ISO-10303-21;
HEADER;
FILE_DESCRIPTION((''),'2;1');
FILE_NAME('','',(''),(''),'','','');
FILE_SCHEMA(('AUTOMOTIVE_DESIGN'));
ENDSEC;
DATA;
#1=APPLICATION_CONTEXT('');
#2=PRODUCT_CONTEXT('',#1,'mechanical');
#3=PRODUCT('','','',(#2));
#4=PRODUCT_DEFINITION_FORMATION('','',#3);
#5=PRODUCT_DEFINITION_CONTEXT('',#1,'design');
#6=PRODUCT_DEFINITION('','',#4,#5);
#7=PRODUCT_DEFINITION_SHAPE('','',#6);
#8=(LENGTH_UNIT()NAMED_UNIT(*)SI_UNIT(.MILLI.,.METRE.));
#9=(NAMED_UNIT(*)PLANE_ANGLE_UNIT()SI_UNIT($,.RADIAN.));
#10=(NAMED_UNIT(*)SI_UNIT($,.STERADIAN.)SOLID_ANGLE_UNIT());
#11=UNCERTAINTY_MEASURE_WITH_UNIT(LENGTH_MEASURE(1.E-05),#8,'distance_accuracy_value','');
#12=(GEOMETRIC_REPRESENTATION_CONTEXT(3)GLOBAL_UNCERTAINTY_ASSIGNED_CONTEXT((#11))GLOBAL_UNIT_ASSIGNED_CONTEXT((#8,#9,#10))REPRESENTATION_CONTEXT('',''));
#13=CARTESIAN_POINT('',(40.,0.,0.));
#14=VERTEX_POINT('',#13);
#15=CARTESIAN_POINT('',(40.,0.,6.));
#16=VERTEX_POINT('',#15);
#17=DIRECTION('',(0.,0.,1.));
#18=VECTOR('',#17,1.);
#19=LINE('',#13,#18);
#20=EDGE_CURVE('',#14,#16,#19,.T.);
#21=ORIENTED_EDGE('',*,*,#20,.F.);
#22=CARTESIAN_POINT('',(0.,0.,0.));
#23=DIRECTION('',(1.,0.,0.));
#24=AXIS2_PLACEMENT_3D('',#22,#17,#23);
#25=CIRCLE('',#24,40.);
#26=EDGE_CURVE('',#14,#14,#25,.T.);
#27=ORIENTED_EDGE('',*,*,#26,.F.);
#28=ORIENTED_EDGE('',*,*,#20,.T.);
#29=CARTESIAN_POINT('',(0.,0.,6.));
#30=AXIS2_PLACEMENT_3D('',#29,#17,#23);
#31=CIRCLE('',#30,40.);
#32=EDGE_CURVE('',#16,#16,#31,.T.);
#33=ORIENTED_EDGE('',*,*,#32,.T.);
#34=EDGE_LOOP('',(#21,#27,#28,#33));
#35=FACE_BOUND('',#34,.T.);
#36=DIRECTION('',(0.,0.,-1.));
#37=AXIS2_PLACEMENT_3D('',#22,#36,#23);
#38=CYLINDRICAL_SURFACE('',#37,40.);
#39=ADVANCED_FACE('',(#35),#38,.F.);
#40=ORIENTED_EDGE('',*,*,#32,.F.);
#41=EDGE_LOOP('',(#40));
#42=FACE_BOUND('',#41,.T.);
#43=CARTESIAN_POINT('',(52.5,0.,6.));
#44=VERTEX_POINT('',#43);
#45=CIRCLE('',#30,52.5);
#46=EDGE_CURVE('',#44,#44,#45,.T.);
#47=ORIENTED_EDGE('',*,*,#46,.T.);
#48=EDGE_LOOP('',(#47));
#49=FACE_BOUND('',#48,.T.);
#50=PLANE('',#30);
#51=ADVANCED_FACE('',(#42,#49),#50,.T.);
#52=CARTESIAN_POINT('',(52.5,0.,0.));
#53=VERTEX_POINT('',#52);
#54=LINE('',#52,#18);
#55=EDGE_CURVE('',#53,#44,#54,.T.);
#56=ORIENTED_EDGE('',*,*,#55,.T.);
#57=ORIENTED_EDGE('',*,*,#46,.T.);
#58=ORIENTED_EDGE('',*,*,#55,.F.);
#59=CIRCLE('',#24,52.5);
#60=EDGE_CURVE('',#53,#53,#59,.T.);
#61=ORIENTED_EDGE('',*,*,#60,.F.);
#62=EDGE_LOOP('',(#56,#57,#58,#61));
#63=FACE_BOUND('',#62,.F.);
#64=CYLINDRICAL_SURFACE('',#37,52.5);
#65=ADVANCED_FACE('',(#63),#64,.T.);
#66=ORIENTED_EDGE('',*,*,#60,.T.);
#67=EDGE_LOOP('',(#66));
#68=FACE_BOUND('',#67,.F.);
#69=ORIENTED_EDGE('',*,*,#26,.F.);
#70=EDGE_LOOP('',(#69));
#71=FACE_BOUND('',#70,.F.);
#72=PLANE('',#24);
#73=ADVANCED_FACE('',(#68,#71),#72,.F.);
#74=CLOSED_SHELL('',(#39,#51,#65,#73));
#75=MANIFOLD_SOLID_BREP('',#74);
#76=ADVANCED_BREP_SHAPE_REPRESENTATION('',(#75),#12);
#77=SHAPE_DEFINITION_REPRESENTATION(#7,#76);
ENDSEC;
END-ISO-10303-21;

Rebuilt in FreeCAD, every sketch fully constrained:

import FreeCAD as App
import Part
import Sketcher

V = App.Vector

doc = App.newDocument("Part")
params = doc.addObject("Spreadsheet::Sheet", "Params")
for row, (alias, value) in enumerate([
    ("sketch1_diameter", "105 mm"),
    ("sketch1_diameter2", "80 mm"),
    ("pad1_length", "6 mm"),
], start=1):
    params.set(f"A{row}", alias)
    params.set(f"B{row}", "=" + value)
    params.setAlias(f"B{row}", alias)

body = doc.addObject("PartDesign::Body", "Body")

# Sketch on XY plane
sketch1 = body.newObject("Sketcher::SketchObject", "Sketch")
sketch1.AttachmentSupport = (doc.getObject("XY_Plane"), [""])
sketch1.MapMode = "FlatFace"
sketch1.addGeometry(Part.Circle(V(0, 0, 0), V(0, 0, 1), 52), False)
sketch1.addGeometry(Part.Circle(V(0, 0, 0), V(0, 0, 1), 40), False)
sketch1.addConstraint(Sketcher.Constraint("Coincident", 0, 3, -1, 1))
sketch1.addConstraint(Sketcher.Constraint("Coincident", 1, 3, -1, 1))
sketch1.addConstraint(Sketcher.Constraint("Diameter", 0, 105.0))
sketch1.addConstraint(Sketcher.Constraint("Diameter", 1, 80.0))
sketch1.setExpression("Constraints[2]", "Params.sketch1_diameter")
sketch1.setExpression("Constraints[3]", "Params.sketch1_diameter2")
pad1 = body.newObject("PartDesign::Pad", "Pad")
pad1.Profile = sketch1
pad1.setExpression("Length", "Params.pad1_length")

doc.recompute()
